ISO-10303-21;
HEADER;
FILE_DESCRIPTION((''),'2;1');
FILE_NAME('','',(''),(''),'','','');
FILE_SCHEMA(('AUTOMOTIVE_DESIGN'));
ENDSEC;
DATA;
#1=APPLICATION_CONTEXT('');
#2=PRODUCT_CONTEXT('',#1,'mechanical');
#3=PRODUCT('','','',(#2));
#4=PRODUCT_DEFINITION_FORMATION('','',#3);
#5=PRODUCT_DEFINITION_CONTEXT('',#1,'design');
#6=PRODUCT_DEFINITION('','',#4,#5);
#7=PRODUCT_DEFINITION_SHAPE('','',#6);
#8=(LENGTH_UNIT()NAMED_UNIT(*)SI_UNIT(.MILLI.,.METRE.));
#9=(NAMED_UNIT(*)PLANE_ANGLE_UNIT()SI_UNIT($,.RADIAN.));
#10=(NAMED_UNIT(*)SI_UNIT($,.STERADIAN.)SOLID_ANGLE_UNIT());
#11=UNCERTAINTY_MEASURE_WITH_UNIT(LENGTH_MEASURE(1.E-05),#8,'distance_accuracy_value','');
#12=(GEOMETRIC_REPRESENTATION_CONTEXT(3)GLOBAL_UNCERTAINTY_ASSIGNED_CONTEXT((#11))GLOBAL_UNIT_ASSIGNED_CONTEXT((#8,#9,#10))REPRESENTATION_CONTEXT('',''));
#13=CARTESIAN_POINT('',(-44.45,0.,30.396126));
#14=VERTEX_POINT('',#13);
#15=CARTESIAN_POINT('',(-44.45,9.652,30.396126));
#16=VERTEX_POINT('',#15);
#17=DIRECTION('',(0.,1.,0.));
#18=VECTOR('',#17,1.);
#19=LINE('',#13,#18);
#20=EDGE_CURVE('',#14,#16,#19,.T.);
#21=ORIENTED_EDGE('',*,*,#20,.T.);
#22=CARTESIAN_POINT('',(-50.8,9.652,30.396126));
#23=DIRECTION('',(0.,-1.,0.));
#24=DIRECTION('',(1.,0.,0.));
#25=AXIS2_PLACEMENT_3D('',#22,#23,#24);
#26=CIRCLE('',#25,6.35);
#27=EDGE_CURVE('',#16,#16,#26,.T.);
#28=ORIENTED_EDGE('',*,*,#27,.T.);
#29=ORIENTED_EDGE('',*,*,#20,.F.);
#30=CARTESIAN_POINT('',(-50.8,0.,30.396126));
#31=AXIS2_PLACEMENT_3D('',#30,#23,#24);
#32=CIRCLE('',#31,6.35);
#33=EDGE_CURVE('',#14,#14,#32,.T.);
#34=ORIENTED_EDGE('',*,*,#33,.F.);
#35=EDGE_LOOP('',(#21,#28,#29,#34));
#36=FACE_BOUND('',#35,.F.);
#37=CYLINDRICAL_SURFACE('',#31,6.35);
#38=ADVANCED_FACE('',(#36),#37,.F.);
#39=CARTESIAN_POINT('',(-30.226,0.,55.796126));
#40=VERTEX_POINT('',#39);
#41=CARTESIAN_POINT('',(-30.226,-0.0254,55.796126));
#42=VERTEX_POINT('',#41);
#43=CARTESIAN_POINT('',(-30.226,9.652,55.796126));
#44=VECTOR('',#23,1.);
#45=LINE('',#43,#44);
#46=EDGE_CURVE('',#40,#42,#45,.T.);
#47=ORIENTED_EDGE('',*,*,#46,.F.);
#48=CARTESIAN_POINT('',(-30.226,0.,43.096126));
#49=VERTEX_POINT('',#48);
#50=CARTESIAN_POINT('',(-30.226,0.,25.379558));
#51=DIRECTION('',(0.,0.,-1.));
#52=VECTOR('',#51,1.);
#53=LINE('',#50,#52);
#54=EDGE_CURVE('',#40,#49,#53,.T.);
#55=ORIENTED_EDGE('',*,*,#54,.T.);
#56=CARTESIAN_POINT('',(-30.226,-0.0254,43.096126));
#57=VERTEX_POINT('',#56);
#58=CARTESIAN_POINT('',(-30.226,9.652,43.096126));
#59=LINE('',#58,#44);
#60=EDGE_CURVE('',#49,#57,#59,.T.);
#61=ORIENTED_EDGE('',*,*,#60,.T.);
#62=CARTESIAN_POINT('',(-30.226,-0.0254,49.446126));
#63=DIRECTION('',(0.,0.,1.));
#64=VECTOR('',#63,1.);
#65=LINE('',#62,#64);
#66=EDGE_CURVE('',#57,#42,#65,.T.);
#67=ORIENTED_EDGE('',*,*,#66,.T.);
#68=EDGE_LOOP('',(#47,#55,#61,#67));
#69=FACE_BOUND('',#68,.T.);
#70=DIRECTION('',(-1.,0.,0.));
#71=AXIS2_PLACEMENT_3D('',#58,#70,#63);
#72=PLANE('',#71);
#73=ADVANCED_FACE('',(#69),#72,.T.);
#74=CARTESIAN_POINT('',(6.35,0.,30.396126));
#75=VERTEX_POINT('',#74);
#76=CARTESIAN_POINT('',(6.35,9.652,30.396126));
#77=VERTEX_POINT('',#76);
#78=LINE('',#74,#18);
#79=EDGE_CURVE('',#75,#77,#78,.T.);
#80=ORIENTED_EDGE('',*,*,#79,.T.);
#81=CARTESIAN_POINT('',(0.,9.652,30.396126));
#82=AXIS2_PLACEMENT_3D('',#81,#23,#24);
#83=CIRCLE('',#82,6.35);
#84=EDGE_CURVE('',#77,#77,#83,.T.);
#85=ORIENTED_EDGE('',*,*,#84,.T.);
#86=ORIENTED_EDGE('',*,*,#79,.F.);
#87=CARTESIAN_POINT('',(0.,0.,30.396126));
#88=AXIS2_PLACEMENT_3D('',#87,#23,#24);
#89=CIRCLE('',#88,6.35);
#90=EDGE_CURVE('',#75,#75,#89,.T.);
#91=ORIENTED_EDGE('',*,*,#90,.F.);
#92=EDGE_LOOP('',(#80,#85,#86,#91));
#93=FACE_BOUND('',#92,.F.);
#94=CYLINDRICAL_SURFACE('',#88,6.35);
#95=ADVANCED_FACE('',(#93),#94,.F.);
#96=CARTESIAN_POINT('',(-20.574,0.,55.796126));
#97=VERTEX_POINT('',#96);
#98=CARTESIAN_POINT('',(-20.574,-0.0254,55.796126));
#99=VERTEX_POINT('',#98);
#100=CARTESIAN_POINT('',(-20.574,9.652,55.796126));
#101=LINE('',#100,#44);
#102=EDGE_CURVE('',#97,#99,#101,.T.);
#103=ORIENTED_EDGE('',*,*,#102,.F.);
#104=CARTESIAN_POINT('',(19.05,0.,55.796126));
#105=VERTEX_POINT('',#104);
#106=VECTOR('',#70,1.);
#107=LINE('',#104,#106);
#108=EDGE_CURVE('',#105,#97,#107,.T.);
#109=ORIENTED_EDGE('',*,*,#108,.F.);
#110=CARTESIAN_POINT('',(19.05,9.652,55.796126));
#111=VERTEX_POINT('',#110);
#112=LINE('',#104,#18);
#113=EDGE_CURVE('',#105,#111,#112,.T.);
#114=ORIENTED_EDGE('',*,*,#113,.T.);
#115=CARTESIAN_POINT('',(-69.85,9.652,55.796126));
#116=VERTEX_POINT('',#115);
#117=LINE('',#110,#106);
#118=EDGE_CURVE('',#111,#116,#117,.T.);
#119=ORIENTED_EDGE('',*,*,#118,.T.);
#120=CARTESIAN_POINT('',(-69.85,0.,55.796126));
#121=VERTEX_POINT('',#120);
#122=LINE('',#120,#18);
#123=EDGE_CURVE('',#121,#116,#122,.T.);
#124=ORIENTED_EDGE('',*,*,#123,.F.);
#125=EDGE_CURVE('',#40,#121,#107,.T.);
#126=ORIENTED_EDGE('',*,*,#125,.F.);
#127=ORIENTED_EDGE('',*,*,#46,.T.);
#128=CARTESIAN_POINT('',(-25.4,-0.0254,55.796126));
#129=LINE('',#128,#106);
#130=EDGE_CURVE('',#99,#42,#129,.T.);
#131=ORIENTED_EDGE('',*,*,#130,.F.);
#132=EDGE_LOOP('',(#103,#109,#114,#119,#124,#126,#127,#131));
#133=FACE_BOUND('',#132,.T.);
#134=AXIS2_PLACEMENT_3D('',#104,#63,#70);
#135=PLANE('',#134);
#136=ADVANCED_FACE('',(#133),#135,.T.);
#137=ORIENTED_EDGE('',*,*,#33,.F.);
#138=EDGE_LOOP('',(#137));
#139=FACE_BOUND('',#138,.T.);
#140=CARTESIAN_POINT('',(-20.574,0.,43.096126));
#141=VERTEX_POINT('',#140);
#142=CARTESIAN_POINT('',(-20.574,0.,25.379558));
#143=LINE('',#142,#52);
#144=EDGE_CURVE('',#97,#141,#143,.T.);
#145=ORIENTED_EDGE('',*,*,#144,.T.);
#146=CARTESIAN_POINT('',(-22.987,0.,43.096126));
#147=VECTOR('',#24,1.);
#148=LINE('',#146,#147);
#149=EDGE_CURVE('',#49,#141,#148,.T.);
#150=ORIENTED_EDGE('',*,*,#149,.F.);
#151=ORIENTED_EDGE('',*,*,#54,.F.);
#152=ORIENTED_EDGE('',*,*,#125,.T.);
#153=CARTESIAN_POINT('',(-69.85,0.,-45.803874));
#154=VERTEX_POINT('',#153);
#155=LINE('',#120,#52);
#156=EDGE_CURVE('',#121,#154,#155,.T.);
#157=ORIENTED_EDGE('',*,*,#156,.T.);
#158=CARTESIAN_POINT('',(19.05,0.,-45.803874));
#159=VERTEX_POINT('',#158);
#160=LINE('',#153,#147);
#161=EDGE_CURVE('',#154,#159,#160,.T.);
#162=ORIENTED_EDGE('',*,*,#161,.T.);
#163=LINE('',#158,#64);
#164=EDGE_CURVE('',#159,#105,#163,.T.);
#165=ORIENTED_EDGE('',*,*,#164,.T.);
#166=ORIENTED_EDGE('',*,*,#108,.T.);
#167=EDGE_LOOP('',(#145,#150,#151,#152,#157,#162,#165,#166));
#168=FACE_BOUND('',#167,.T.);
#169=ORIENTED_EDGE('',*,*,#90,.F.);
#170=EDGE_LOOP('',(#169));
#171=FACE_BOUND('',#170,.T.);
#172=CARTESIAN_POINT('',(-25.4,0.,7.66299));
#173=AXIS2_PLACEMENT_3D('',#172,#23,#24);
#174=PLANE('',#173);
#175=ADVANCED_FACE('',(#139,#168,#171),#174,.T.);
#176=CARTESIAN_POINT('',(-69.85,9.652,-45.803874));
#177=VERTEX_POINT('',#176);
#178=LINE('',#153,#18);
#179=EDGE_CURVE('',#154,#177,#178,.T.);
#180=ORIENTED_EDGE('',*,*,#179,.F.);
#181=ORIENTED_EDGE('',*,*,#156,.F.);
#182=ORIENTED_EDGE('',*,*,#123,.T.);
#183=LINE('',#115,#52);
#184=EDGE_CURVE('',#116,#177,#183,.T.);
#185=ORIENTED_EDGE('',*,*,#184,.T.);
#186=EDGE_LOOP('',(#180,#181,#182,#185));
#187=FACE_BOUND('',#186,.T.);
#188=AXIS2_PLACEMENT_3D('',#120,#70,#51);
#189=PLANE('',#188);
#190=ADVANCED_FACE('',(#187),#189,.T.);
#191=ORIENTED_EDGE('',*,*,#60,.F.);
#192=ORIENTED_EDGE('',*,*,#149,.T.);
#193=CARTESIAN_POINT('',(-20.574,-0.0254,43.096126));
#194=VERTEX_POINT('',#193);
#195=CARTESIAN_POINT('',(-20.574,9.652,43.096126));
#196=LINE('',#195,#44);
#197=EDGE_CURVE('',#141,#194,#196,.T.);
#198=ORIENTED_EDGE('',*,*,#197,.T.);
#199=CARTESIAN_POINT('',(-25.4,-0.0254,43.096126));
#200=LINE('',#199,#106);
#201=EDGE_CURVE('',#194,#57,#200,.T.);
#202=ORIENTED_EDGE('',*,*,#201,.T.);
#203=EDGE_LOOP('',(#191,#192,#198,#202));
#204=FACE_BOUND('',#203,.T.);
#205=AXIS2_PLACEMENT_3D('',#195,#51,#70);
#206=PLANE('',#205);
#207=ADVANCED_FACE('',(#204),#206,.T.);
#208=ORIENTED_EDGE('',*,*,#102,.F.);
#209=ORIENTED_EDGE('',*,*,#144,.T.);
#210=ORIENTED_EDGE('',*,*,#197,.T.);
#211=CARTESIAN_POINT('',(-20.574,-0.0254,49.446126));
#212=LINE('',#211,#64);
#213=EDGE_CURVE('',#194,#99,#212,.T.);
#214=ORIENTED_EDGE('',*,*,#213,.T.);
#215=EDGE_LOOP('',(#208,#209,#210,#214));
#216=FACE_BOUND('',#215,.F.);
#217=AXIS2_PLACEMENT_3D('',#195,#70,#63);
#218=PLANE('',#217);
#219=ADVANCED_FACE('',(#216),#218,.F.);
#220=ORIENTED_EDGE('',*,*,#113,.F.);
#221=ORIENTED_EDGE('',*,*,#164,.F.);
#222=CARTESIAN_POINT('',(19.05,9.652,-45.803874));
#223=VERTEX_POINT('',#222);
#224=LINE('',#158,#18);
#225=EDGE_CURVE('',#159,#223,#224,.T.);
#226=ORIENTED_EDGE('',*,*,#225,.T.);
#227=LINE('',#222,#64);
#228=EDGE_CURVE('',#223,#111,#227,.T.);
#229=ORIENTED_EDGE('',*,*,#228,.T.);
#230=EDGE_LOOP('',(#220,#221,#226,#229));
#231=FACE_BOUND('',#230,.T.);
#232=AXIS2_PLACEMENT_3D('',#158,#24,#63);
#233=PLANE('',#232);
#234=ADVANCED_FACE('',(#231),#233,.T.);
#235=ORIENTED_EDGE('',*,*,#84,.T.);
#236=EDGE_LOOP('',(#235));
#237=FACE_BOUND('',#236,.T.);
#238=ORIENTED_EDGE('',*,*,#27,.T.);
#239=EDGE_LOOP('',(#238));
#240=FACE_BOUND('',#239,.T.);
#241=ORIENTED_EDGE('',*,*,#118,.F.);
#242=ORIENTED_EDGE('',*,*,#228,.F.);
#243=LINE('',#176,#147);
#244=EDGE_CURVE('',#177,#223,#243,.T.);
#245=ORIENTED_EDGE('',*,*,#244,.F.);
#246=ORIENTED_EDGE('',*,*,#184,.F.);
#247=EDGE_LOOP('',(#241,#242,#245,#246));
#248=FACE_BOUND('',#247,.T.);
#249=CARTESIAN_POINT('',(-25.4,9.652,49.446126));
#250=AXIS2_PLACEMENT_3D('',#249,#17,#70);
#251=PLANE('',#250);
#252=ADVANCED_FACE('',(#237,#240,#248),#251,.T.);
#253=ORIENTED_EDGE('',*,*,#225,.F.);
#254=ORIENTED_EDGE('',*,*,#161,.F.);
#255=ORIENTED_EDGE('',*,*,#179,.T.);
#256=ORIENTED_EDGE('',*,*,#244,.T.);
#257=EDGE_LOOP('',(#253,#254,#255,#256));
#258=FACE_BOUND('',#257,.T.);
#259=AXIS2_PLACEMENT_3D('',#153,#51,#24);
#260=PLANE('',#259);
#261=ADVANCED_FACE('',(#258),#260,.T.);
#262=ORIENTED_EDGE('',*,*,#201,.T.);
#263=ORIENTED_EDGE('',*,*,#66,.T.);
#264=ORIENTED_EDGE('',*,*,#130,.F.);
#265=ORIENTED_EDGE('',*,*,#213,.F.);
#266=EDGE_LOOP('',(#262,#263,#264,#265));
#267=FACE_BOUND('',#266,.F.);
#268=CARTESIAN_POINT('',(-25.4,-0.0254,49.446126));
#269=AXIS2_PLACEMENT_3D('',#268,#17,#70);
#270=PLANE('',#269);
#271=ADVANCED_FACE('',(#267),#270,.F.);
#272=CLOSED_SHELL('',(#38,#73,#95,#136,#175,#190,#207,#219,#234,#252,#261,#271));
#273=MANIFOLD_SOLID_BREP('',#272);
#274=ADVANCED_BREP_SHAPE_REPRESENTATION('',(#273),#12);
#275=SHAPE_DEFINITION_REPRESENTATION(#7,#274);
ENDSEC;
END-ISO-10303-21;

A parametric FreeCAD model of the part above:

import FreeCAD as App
import Part
import Sketcher
from FreeCAD import Vector
Q = App.Units.Quantity

doc = App.newDocument("Part")
body = doc.addObject("PartDesign::Body", "Body")

# Sketch on XZ plane
sketch1 = doc.addObject("Sketcher::SketchObject", "Sketch")
body.addObject(sketch1)
sketch1.AttachmentSupport = (doc.XZ_Plane, [""])
sketch1.MapMode = "FlatFace"
sketch1.addGeometry(Part.LineSegment(Vector(-70, -46, 0), Vector(19, -46, 0)), False)
sketch1.addGeometry(Part.LineSegment(Vector(19, -46, 0), Vector(19, 56, 0)), False)
sketch1.addGeometry(Part.LineSegment(Vector(19, 56, 0), Vector(-70, 56, 0)), False)
sketch1.addGeometry(Part.LineSegment(Vector(-70, 56, 0), Vector(-70, -46, 0)), False)
sketch1.addGeometry(Part.Circle(Vector(-51, 30, 0), Vector(0, 0, 1), 6), False)
sketch1.addGeometry(Part.Circle(Vector(0, 30, 0), Vector(0, 0, 1), 6), False)
sketch1.addConstraint(Sketcher.Constraint("Coincident", 0, 2, 1, 1))
sketch1.addConstraint(Sketcher.Constraint("Coincident", 1, 2, 2, 1))
sketch1.addConstraint(Sketcher.Constraint("Coincident", 2, 2, 3, 1))
sketch1.addConstraint(Sketcher.Constraint("Coincident", 3, 2, 0, 1))
sketch1.addConstraint(Sketcher.Constraint("Horizontal", 0))
sketch1.addConstraint(Sketcher.Constraint("Vertical", 1))
sketch1.addConstraint(Sketcher.Constraint("Horizontal", 2))
sketch1.addConstraint(Sketcher.Constraint("Vertical", 3))
sketch1.addConstraint(Sketcher.Constraint("Equal", 4, 5))
sketch1.addConstraint(Sketcher.Constraint("PointOnObject", 5, 3, -2))
sketch1.addConstraint(Sketcher.Constraint("Horizontal", 4, 3, 5, 3))
sketch1.addConstraint(Sketcher.Constraint("Diameter", 4, Q("0.5 in")))
sketch1.addConstraint(Sketcher.Constraint("DistanceY", 1, 1, 1, 2, Q("4 in")))
sketch1.addConstraint(Sketcher.Constraint("DistanceX", 0, 1, 0, 2, Q("3.5 in")))
sketch1.addConstraint(Sketcher.Constraint("DistanceX", 4, 3, -1, 1, Q("2 in")))
sketch1.addConstraint(Sketcher.Constraint("DistanceY", 0, 2, 5, 3, Q("3 in")))
sketch1.addConstraint(Sketcher.Constraint("DistanceX", -1, 1, 0, 2, Q("0.75 in")))
sketch1.addConstraint(Sketcher.Constraint("DistanceY", -1, 1, 4, 3, 30.396126))
pad1 = doc.addObject("PartDesign::Pad", "Pad")
body.addObject(pad1)
pad1.Profile = sketch1
pad1.Length = Q("0.38 in")
pad1.Reversed = True

# Sketch on XZ plane
sketch2 = doc.addObject("Sketcher::SketchObject", "Sketch001")
body.addObject(sketch2)
sketch2.AttachmentSupport = (doc.XZ_Plane, [""])
sketch2.MapMode = "FlatFace"
sketch2.AttachmentOffset = App.Placement(Vector(0, 0, -0.38 * 25.4), App.Rotation())
sketch2.addGeometry(Part.LineSegment(Vector(-21, 56, 0), Vector(-21, 43, 0)), False)
sketch2.addGeometry(Part.LineSegment(Vector(-21, 43, 0), Vector(-30, 43, 0)), False)
sketch2.addGeometry(Part.LineSegment(Vector(-30, 43, 0), Vector(-30, 56, 0)), False)
sketch2.addGeometry(Part.LineSegment(Vector(-30, 56, 0), Vector(-21, 56, 0)), False)
sketch2.addConstraint(Sketcher.Constraint("Coincident", 0, 2, 1, 1))
sketch2.addConstraint(Sketcher.Constraint("Coincident", 1, 2, 2, 1))
sketch2.addConstraint(Sketcher.Constraint("Coincident", 2, 2, 3, 1))
sketch2.addConstraint(Sketcher.Constraint("Coincident", 3, 2, 0, 1))
sketch2.addConstraint(Sketcher.Constraint("Vertical", 0))
sketch2.addConstraint(Sketcher.Constraint("Horizontal", 1))
sketch2.addConstraint(Sketcher.Constraint("Vertical", 2))
sketch2.addConstraint(Sketcher.Constraint("Horizontal", 3))
sketch2.addConstraint(Sketcher.Constraint("DistanceY", 0, 2, 0, 1, Q("0.5 in")))
sketch2.addConstraint(Sketcher.Constraint("DistanceX", 1, 2, 1, 1, Q("0.38 in")))
sketch2.addConstraint(Sketcher.Constraint("DistanceX", 0, 2, -1, 1, Q("0.81 in")))
sketch2.addConstraint(Sketcher.Constraint("DistanceY", -1, 1, 0, 2, 43.096126))
pad2 = doc.addObject("PartDesign::Pad", "Pad001")
body.addObject(pad2)
pad2.Profile = sketch2
pad2.Length = Q("0.381 in")

doc.recompute()
